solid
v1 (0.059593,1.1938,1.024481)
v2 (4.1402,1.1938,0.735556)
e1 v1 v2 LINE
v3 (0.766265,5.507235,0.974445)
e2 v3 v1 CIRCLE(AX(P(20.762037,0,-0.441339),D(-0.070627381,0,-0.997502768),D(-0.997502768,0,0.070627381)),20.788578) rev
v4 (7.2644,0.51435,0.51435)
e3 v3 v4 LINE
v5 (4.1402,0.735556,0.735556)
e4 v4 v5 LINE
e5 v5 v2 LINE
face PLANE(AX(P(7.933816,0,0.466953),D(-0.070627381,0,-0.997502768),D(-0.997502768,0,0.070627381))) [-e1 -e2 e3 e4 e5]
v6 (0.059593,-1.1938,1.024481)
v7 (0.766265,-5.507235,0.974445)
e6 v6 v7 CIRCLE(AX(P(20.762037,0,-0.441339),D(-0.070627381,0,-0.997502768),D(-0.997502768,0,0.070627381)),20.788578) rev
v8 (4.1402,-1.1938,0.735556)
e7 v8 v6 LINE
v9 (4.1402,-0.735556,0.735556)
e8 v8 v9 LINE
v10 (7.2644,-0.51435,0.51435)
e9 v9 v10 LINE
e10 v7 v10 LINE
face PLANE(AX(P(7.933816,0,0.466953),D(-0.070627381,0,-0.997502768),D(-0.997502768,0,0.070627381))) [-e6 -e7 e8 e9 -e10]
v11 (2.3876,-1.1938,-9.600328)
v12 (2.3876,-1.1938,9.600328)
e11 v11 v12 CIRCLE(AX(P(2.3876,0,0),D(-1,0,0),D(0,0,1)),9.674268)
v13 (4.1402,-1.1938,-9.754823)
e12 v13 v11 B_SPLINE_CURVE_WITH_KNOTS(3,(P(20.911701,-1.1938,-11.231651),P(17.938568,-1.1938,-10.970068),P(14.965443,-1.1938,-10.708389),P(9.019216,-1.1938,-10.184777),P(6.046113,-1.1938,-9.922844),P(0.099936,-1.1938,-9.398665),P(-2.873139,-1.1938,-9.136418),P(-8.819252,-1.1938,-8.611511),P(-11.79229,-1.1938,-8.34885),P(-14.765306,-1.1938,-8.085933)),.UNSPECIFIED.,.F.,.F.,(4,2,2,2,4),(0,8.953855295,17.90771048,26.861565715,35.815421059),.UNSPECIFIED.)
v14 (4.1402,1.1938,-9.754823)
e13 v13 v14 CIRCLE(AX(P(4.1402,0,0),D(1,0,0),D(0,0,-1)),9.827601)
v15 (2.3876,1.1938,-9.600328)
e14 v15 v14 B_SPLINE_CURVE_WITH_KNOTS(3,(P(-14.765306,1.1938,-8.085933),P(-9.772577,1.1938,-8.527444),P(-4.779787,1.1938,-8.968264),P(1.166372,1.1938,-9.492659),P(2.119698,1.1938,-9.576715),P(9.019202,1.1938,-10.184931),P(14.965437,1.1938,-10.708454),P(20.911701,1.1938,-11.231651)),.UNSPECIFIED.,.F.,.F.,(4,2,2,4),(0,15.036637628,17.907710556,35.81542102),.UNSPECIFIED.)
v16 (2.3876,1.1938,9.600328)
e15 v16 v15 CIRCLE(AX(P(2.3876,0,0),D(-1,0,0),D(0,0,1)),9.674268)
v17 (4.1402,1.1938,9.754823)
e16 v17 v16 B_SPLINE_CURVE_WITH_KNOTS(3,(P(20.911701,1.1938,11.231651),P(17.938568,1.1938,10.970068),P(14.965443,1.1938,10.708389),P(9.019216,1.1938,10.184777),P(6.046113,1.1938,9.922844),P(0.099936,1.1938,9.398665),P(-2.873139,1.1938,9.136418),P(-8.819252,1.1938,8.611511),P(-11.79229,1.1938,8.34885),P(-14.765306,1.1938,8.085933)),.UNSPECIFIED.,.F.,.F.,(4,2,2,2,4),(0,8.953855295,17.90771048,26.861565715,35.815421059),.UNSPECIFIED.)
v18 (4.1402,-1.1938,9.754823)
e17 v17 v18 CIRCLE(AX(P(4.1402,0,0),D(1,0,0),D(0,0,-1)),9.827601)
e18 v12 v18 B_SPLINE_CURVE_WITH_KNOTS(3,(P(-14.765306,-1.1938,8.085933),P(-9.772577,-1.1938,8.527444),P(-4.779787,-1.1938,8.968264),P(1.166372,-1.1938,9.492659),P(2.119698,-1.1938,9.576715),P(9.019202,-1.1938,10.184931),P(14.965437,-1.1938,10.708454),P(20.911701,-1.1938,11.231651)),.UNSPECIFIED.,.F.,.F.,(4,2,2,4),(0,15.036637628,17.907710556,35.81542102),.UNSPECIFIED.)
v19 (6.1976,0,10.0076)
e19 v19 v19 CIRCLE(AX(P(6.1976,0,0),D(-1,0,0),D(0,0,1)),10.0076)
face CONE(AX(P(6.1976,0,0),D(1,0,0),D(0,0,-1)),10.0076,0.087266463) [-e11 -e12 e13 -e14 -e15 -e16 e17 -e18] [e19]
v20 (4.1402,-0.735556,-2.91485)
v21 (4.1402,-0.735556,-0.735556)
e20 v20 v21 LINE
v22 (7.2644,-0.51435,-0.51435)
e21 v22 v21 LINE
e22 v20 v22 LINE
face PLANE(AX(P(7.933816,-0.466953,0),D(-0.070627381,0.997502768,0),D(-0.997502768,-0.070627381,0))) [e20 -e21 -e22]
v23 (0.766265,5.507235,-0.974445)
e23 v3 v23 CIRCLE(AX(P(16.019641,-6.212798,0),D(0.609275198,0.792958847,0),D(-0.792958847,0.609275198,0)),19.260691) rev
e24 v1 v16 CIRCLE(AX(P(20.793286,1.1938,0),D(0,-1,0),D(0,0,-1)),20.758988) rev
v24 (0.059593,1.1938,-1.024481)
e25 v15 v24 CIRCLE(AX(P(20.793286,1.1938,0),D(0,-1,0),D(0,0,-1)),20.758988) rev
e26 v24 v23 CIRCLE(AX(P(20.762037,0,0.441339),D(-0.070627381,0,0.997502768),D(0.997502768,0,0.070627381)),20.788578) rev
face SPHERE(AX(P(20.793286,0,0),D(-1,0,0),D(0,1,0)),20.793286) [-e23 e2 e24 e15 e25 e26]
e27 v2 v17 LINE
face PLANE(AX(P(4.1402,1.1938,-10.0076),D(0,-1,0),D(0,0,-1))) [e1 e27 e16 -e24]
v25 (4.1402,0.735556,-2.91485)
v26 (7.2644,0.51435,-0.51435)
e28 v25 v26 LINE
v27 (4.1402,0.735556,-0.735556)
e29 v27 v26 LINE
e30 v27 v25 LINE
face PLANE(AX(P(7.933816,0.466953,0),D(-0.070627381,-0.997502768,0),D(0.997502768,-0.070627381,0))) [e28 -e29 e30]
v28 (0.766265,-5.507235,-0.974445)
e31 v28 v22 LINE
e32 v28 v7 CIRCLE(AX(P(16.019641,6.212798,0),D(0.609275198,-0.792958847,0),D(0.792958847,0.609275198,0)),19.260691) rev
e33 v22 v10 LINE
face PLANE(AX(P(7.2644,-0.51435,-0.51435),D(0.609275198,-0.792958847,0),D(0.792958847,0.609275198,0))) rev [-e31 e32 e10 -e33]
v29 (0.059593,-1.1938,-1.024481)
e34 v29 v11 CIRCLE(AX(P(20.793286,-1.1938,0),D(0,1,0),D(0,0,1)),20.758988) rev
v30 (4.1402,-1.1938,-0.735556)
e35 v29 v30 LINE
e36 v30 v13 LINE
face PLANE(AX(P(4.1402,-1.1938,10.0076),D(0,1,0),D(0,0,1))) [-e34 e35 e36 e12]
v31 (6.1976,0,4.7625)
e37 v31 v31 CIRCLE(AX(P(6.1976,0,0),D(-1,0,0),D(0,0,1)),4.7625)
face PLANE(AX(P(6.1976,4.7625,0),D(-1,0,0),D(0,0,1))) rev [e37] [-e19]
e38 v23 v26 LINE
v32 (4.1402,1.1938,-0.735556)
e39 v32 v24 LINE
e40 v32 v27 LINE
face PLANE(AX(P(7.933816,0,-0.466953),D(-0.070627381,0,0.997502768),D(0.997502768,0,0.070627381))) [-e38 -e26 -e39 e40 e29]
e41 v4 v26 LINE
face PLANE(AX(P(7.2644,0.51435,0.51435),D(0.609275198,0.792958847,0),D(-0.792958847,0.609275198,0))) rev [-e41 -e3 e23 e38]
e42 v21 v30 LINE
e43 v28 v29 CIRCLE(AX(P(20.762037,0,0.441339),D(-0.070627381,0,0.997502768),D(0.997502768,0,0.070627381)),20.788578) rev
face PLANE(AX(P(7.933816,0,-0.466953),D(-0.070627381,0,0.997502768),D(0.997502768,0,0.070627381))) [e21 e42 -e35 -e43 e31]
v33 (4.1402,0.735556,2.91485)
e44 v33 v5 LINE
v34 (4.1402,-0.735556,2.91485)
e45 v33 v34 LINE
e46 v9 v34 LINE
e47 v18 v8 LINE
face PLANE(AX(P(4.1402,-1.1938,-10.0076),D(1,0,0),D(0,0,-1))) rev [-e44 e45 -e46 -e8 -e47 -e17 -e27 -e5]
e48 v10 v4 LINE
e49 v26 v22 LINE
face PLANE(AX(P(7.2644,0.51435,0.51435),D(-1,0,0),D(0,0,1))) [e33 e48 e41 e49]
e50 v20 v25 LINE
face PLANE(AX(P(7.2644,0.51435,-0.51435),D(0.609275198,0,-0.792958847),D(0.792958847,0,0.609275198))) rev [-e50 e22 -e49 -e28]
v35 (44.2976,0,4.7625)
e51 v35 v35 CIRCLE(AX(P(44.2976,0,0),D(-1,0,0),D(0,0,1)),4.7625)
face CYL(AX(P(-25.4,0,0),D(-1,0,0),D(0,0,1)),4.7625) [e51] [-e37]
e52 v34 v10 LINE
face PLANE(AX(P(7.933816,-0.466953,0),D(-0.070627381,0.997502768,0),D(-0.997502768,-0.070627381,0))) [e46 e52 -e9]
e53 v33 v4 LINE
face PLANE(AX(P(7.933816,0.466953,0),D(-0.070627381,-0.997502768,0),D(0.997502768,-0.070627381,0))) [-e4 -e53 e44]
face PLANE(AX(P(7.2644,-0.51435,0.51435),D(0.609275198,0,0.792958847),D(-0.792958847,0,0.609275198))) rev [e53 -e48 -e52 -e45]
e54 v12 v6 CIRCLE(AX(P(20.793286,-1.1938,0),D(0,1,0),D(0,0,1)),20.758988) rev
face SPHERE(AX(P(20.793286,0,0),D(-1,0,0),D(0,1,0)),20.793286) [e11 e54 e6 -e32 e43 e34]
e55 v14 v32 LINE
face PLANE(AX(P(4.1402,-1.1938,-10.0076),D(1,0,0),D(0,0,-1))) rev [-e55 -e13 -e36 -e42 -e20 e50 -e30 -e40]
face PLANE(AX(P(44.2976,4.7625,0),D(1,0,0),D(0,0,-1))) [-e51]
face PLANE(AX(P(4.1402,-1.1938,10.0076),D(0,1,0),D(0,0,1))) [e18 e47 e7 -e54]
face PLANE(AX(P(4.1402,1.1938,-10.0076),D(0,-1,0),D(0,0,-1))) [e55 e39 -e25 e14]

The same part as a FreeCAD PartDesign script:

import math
import FreeCAD as App
import Part
import Sketcher
from FreeCAD import Vector
Q = App.Units.Quantity


def add_polygon(sketch, points):
    """Adds a closed chain of lines whose ends are joined by coincident constraints."""
    first, n = sketch.GeometryCount, len(points)
    for a, b in zip(points, points[1:] + points[:1]):
        sketch.addGeometry(Part.LineSegment(App.Vector(*a, 0), App.Vector(*b, 0)), False)
    for i in range(n):
        sketch.addConstraint(Sketcher.Constraint("Coincident", first + i, 2, first + (i + 1) % n, 1))

doc = App.newDocument("Part")
body = doc.addObject("PartDesign::Body", "Body")

# Sketch on XY plane
sketch1 = doc.addObject("Sketcher::SketchObject", "Sketch")
body.addObject(sketch1)
sketch1.AttachmentSupport = (doc.XY_Plane, [""])
sketch1.MapMode = "FlatFace"
sketch1.addGeometry(Part.LineSegment(Vector(6.2, 4.8, 0), Vector(6.2, 10, 0)), False)
sketch1.addGeometry(Part.LineSegment(Vector(6.2, 10, 0), Vector(2.4, 9.7, 0)), False)
sketch1.addGeometry(Part.ArcOfCircle(Part.Circle(Vector(20.8, 0, 0), Vector(0, 0, 1), 20.8), math.radians(152), math.radians(180)), False)
sketch1.addGeometry(Part.LineSegment(Vector(0, 0, 0), Vector(44.3, 0, 0)), False)
sketch1.addGeometry(Part.LineSegment(Vector(44.3, 0, 0), Vector(44.3, 4.8, 0)), False)
sketch1.addGeometry(Part.LineSegment(Vector(44.3, 4.8, 0), Vector(6.2, 4.8, 0)), False)
sketch1.addConstraint(Sketcher.Constraint("Coincident", 0, 2, 1, 1))
sketch1.addConstraint(Sketcher.Constraint("Coincident", 1, 2, 2, 1))
sketch1.addConstraint(Sketcher.Constraint("Coincident", 2, 2, 3, 1))
sketch1.addConstraint(Sketcher.Constraint("Coincident", 3, 2, 4, 1))
sketch1.addConstraint(Sketcher.Constraint("Coincident", 4, 2, 5, 1))
sketch1.addConstraint(Sketcher.Constraint("Coincident", 5, 2, 0, 1))
sketch1.addConstraint(Sketcher.Constraint("Vertical", 0))
sketch1.addConstraint(Sketcher.Constraint("Horizontal", 3))
sketch1.addConstraint(Sketcher.Constraint("Vertical", 4))
sketch1.addConstraint(Sketcher.Constraint("Horizontal", 5))
sketch1.addConstraint(Sketcher.Constraint("Coincident", 2, 2, -1, 1))
sketch1.addConstraint(Sketcher.Constraint("PointOnObject", 2, 3, -1))
sketch1.addConstraint(Sketcher.Constraint("DistanceX", 5, 2, 5, 1, Q("1.5 in")))
sketch1.addConstraint(Sketcher.Constraint("Angle", 1, Q("-175 deg")))
sketch1.addConstraint(Sketcher.Constraint("DistanceX", 3, 1, 3, 2, Q("1.744 in")))
sketch1.addConstraint(Sketcher.Constraint("DistanceY", 4, 1, 4, 2, Q("0.1875 in")))
sketch1.addConstraint(Sketcher.Constraint("DistanceX", 1, 2, 0, 2, Q("0.15 in")))
sketch1.addConstraint(Sketcher.Constraint("DistanceY", 0, 1, 0, 2, Q("0.2065 in")))
revolution = doc.addObject("PartDesign::Revolution", "Revolution")
body.addObject(revolution)
revolution.Profile = sketch1
revolution.ReferenceAxis = (sketch1, ["H_Axis"])
revolution.Angle = 360

# Sketch on YZ plane
sketch2 = doc.addObject("Sketcher::SketchObject", "Sketch001")
body.addObject(sketch2)
sketch2.AttachmentSupport = (doc.YZ_Plane, [""])
sketch2.MapMode = "FlatFace"
add_polygon(sketch2, [(1.2, 10), (-1.2, 10), (-1.2, -10), (1.2, -10)])  # lines 0-3
sketch2.addConstraint(Sketcher.Constraint("Horizontal", 0))
sketch2.addConstraint(Sketcher.Constraint("Vertical", 1))
sketch2.addConstraint(Sketcher.Constraint("Horizontal", 2))
sketch2.addConstraint(Sketcher.Constraint("Vertical", 3))
sketch2.addConstraint(Sketcher.Constraint("Symmetric", 0, 2, 2, 2, -1, 1))
sketch2.addConstraint(Sketcher.Constraint("DistanceX", 0, 2, 0, 1, Q("0.094 in")))
sketch2.addConstraint(Sketcher.Constraint("DistanceY", 1, 2, 1, 1, Q("0.788 in")))
pocket1 = doc.addObject("PartDesign::Pocket", "Pocket")
body.addObject(pocket1)
pocket1.Profile = sketch2
pocket1.Length = Q("0.163 in")
pocket1.Reversed = True

# Sketch on YZ plane
sketch3 = doc.addObject("Sketcher::SketchObject", "Sketch002")
body.addObject(sketch3)
sketch3.AttachmentSupport = (doc.YZ_Plane, [""])
sketch3.MapMode = "FlatFace"
add_polygon(sketch3, [(6.1, -1), (6.1, 1), (-6.1, 1), (-6.1, -1)])  # lines 0-3
sketch3.addConstraint(Sketcher.Constraint("Vertical", 0))
sketch3.addConstraint(Sketcher.Constraint("Horizontal", 1))
sketch3.addConstraint(Sketcher.Constraint("Vertical", 2))
sketch3.addConstraint(Sketcher.Constraint("Horizontal", 3))
sketch3.addConstraint(Sketcher.Constraint("Symmetric", 0, 2, 2, 2, -1, 1))
sketch3.addConstraint(Sketcher.Constraint("DistanceX", 1, 2, 1, 1, Q("0.48 in")))
sketch3.addConstraint(Sketcher.Constraint("DistanceY", 0, 1, 0, 2, Q("0.081 in")))

# Sketch on YZ plane
sketch4 = doc.addObject("Sketcher::SketchObject", "Sketch003")
body.addObject(sketch4)
sketch4.AttachmentSupport = (doc.YZ_Plane, [""])
sketch4.MapMode = "FlatFace"
sketch4.AttachmentOffset = App.Placement(Vector(0, 0, 0.286 * 25.4), App.Rotation())
add_polygon(sketch4, [(0.5, -0.5), (0.5, 0.5), (-0.5, 0.5), (-0.5, -0.5)])  # lines 0-3
sketch4.addConstraint(Sketcher.Constraint("Vertical", 0))
sketch4.addConstraint(Sketcher.Constraint("Horizontal", 1))
sketch4.addConstraint(Sketcher.Constraint("Vertical", 2))
sketch4.addConstraint(Sketcher.Constraint("Horizontal", 3))
sketch4.addConstraint(Sketcher.Constraint("Symmetric", 0, 2, 2, 2, -1, 1))
sketch4.addConstraint(Sketcher.Constraint("Equal", 3, 0))
sketch4.addConstraint(Sketcher.Constraint("DistanceX", 1, 2, 1, 1, Q("0.0405 in")))

subtractiveloft = doc.addObject("PartDesign::SubtractiveLoft", "SubtractiveLoft")
body.addObject(subtractiveloft)
subtractiveloft.Profile = sketch3
subtractiveloft.Sections = [sketch4]
doc.recompute()

polarpattern = doc.addObject("PartDesign::PolarPattern", "PolarPattern")
body.addObject(polarpattern)
polarpattern.Originals = [subtractiveloft]
polarpattern.Axis = (doc.X_Axis, [""])
polarpattern.Angle = 90
polarpattern.Occurrences = 2
body.Tip = polarpattern

doc.recompute()
